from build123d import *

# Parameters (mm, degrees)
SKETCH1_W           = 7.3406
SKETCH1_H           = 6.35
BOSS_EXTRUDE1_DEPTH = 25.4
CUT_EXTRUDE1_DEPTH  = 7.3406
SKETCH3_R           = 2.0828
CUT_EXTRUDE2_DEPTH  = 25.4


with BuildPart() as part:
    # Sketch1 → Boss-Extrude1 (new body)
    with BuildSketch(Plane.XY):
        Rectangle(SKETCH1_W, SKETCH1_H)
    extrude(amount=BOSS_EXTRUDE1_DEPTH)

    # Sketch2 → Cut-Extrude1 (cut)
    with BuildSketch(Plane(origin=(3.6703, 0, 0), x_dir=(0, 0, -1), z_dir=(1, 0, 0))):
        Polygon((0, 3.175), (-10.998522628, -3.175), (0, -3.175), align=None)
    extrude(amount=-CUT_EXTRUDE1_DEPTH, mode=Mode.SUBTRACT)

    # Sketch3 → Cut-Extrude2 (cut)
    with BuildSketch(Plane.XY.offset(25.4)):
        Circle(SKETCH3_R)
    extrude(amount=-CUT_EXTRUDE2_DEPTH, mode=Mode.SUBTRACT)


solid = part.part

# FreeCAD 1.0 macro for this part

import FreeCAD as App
import Part
import Sketcher
from FreeCAD import Vector
Q = App.Units.Quantity

doc = App.newDocument("Part")
body = doc.addObject("PartDesign::Body", "Body")

sketch1 = body.newObject("Sketcher::SketchObject", "Sketch")
sketch1.AttachmentSupport = (doc.getObject("XY_Plane"), [""])
sketch1.MapMode = "FlatFace"
sketch1.addGeometry([
    Part.LineSegment(Vector(-3.6703, 3.175, 0), Vector(-3.6703, -3.175, 0)),
    Part.LineSegment(Vector(-3.6703, -3.175, 0), Vector(3.6703, -3.175, 0)),
    Part.LineSegment(Vector(3.6703, -3.175, 0), Vector(3.6703, 3.175, 0)),
    Part.LineSegment(Vector(3.6703, 3.175, 0), Vector(-3.6703, 3.175, 0)),
], False)
sketch1.addConstraint([
    Sketcher.Constraint("Coincident", 0, 2, 1, 1),
    Sketcher.Constraint("Coincident", 1, 2, 2, 1),
    Sketcher.Constraint("Coincident", 2, 2, 3, 1),
    Sketcher.Constraint("Coincident", 3, 2, 0, 1),
    Sketcher.Constraint("Vertical", 0),
    Sketcher.Constraint("Horizontal", 1),
    Sketcher.Constraint("Vertical", 2),
    Sketcher.Constraint("Horizontal", 3),
    Sketcher.Constraint("Symmetric", 0, 2, 2, 2, -1, 1),
    Sketcher.Constraint("DistanceY", 0, 2, 0, 1, Q("0.25 in")),
    Sketcher.Constraint("DistanceX", 1, 1, 1, 2, Q("0.289 in")),
])
pad1 = body.newObject("PartDesign::Pad", "Pad")
pad1.Profile = sketch1
pad1.Length = Q("1 in")

sketch2 = body.newObject("Sketcher::SketchObject", "Sketch001")
sketch2.AttachmentSupport = (doc.getObject("YZ_Plane"), [""])
sketch2.MapMode = "FlatFace"
sketch2.AttachmentOffset = App.Placement(Vector(0, 0, 0.1445 * 25.4), App.Rotation())
sketch2.addGeometry([
    Part.LineSegment(Vector(3.175, 0, 0), Vector(-3.175, 10.998523, 0)),
    Part.LineSegment(Vector(-3.175, 10.998523, 0), Vector(-3.175, 0, 0)),
    Part.LineSegment(Vector(-3.175, 0, 0), Vector(3.175, 0, 0)),
], False)
sketch2.addConstraint([
    Sketcher.Constraint("Coincident", 0, 2, 1, 1),
    Sketcher.Constraint("Coincident", 1, 2, 2, 1),
    Sketcher.Constraint("Coincident", 2, 2, 0, 1),
    Sketcher.Constraint("Vertical", 1),
    Sketcher.Constraint("Horizontal", 2),
    Sketcher.Constraint("Symmetric", 1, 2, 2, 2, -1, 1),
    Sketcher.Constraint("Angle", 0, Q("120 deg")),
    Sketcher.Constraint("Distance", 0, Q("0.5 in")),
])
pocket1 = body.newObject("PartDesign::Pocket", "Pocket")
pocket1.Profile = sketch2
pocket1.Length = Q("0.289 in")

sketch3 = body.newObject("Sketcher::SketchObject", "Sketch002")
sketch3.AttachmentSupport = (doc.getObject("XY_Plane"), [""])
sketch3.MapMode = "FlatFace"
sketch3.AttachmentOffset = App.Placement(Vector(0, 0, 1 * 25.4), App.Rotation())
sketch3.addGeometry(Part.Circle(Vector(0, 0, 0), Vector(0, 0, 1), 2.0828), False)
sketch3.addConstraint([
    Sketcher.Constraint("Coincident", 0, 3, -1, 1),
    Sketcher.Constraint("Diameter", 0, Q("0.164 in")),
])
pocket2 = body.newObject("PartDesign::Pocket", "Pocket001")
pocket2.Profile = sketch3
pocket2.Length = Q("1 in")

doc.recompute()
